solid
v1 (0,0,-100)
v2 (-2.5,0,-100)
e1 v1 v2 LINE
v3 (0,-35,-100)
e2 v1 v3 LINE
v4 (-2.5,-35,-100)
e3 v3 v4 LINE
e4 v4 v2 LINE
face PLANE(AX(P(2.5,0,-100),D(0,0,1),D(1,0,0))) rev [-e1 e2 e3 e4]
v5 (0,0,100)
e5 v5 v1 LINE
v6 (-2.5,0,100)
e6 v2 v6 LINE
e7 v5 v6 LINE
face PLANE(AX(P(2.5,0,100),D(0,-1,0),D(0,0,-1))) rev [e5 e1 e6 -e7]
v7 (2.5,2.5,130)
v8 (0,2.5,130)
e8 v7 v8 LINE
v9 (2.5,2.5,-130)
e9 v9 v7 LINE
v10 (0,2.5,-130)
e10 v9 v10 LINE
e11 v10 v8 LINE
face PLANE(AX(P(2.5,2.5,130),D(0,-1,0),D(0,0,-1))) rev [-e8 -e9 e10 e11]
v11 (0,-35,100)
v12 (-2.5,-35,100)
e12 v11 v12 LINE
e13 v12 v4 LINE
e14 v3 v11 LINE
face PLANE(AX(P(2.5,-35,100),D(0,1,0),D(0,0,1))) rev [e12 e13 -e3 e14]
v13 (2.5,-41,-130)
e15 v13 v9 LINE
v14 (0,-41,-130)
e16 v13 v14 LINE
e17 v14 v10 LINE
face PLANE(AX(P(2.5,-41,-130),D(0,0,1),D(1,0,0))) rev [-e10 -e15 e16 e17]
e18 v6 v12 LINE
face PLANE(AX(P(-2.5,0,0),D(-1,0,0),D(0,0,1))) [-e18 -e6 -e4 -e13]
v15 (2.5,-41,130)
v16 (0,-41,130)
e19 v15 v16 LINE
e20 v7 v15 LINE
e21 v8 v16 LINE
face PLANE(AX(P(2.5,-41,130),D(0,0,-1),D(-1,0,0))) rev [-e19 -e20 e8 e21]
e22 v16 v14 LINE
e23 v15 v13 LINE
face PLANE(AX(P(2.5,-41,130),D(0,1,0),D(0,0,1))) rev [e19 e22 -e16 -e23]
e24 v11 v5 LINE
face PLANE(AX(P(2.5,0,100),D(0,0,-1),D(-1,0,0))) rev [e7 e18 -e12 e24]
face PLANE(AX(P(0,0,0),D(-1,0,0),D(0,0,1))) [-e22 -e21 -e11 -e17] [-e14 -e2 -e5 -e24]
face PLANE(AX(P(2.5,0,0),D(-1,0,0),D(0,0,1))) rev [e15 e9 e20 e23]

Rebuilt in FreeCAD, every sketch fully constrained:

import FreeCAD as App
import Part
import Sketcher
Q = App.Units.Quantity

doc = App.newDocument("Part")
body = doc.addObject("PartDesign::Body", "Body")

# Sketch on YZ plane
sketch1 = body.newObject("Sketcher::SketchObject", "Sketch")
sketch1.AttachmentSupport = (doc.getObject("YZ_Plane"), [""])
sketch1.MapMode = "FlatFace"
sketch1.addGeometry(Part.LineSegment(App.Vector(-35, 100, 0), App.Vector(-35, -100, 0)), False)
sketch1.addGeometry(Part.LineSegment(App.Vector(-35, -100, 0), App.Vector(0, -100, 0)), False)
sketch1.addGeometry(Part.LineSegment(App.Vector(0, -100, 0), App.Vector(0, 100, 0)), False)
sketch1.addGeometry(Part.LineSegment(App.Vector(0, 100, 0), App.Vector(-35, 100, 0)), False)
sketch1.addConstraint(Sketcher.Constraint("Coincident", 0, 2, 1, 1))
sketch1.addConstraint(Sketcher.Constraint("Coincident", 1, 2, 2, 1))
sketch1.addConstraint(Sketcher.Constraint("Coincident", 2, 2, 3, 1))
sketch1.addConstraint(Sketcher.Constraint("Coincident", 3, 2, 0, 1))
sketch1.addConstraint(Sketcher.Constraint("Vertical", 0))
sketch1.addConstraint(Sketcher.Constraint("Horizontal", 1))
sketch1.addConstraint(Sketcher.Constraint("Vertical", 2))
sketch1.addConstraint(Sketcher.Constraint("Horizontal", 3))
sketch1.addConstraint(Sketcher.Constraint("Symmetric", 1, 2, 2, 2, -1, 1))
sketch1.addConstraint(Sketcher.Constraint("DistanceX", 1, 1, 1, 2, Q("35 mm")))
sketch1.addConstraint(Sketcher.Constraint("DistanceY", 0, 2, 0, 1, Q("200 mm")))
pad1 = body.newObject("PartDesign::Pad", "Pad")
pad1.Profile = sketch1
pad1.Length = 5
pad1.Midplane = True

# Sketch on YZ plane
sketch2 = body.newObject("Sketcher::SketchObject", "Sketch001")
sketch2.AttachmentSupport = (doc.getObject("YZ_Plane"), [""])
sketch2.MapMode = "FlatFace"
sketch2.addGeometry(Part.LineSegment(App.Vector(2, 130, 0), App.Vector(-41, 130, 0)), False)
sketch2.addGeometry(Part.LineSegment(App.Vector(-41, 130, 0), App.Vector(-41, -130, 0)), False)
sketch2.addGeometry(Part.LineSegment(App.Vector(-41, -130, 0), App.Vector(2, -130, 0)), False)
sketch2.addGeometry(Part.LineSegment(App.Vector(2, -130, 0), App.Vector(2, 130, 0)), False)
sketch2.addConstraint(Sketcher.Constraint("Coincident", 0, 2, 1, 1))
sketch2.addConstraint(Sketcher.Constraint("Coincident", 1, 2, 2, 1))
sketch2.addConstraint(Sketcher.Constraint("Coincident", 2, 2, 3, 1))
sketch2.addConstraint(Sketcher.Constraint("Coincident", 3, 2, 0, 1))
sketch2.addConstraint(Sketcher.Constraint("Horizontal", 0))
sketch2.addConstraint(Sketcher.Constraint("Vertical", 1))
sketch2.addConstraint(Sketcher.Constraint("Horizontal", 2))
sketch2.addConstraint(Sketcher.Constraint("Vertical", 3))
sketch2.addConstraint(Sketcher.Constraint("DistanceY", 1, 2, 1, 1, Q("260 mm")))
sketch2.addConstraint(Sketcher.Constraint("DistanceX", 0, 2, 0, 1, Q("43.5 mm")))
sketch2.addConstraint(Sketcher.Constraint("DistanceX", 0, 2, -1, 1, Q("41 mm")))
sketch2.addConstraint(Sketcher.Constraint("DistanceY", -1, 1, 0, 2, Q("130 mm")))
pad2 = body.newObject("PartDesign::Pad", "Pad001")
pad2.Profile = sketch2
pad2.Length = 2.5

doc.recompute()
